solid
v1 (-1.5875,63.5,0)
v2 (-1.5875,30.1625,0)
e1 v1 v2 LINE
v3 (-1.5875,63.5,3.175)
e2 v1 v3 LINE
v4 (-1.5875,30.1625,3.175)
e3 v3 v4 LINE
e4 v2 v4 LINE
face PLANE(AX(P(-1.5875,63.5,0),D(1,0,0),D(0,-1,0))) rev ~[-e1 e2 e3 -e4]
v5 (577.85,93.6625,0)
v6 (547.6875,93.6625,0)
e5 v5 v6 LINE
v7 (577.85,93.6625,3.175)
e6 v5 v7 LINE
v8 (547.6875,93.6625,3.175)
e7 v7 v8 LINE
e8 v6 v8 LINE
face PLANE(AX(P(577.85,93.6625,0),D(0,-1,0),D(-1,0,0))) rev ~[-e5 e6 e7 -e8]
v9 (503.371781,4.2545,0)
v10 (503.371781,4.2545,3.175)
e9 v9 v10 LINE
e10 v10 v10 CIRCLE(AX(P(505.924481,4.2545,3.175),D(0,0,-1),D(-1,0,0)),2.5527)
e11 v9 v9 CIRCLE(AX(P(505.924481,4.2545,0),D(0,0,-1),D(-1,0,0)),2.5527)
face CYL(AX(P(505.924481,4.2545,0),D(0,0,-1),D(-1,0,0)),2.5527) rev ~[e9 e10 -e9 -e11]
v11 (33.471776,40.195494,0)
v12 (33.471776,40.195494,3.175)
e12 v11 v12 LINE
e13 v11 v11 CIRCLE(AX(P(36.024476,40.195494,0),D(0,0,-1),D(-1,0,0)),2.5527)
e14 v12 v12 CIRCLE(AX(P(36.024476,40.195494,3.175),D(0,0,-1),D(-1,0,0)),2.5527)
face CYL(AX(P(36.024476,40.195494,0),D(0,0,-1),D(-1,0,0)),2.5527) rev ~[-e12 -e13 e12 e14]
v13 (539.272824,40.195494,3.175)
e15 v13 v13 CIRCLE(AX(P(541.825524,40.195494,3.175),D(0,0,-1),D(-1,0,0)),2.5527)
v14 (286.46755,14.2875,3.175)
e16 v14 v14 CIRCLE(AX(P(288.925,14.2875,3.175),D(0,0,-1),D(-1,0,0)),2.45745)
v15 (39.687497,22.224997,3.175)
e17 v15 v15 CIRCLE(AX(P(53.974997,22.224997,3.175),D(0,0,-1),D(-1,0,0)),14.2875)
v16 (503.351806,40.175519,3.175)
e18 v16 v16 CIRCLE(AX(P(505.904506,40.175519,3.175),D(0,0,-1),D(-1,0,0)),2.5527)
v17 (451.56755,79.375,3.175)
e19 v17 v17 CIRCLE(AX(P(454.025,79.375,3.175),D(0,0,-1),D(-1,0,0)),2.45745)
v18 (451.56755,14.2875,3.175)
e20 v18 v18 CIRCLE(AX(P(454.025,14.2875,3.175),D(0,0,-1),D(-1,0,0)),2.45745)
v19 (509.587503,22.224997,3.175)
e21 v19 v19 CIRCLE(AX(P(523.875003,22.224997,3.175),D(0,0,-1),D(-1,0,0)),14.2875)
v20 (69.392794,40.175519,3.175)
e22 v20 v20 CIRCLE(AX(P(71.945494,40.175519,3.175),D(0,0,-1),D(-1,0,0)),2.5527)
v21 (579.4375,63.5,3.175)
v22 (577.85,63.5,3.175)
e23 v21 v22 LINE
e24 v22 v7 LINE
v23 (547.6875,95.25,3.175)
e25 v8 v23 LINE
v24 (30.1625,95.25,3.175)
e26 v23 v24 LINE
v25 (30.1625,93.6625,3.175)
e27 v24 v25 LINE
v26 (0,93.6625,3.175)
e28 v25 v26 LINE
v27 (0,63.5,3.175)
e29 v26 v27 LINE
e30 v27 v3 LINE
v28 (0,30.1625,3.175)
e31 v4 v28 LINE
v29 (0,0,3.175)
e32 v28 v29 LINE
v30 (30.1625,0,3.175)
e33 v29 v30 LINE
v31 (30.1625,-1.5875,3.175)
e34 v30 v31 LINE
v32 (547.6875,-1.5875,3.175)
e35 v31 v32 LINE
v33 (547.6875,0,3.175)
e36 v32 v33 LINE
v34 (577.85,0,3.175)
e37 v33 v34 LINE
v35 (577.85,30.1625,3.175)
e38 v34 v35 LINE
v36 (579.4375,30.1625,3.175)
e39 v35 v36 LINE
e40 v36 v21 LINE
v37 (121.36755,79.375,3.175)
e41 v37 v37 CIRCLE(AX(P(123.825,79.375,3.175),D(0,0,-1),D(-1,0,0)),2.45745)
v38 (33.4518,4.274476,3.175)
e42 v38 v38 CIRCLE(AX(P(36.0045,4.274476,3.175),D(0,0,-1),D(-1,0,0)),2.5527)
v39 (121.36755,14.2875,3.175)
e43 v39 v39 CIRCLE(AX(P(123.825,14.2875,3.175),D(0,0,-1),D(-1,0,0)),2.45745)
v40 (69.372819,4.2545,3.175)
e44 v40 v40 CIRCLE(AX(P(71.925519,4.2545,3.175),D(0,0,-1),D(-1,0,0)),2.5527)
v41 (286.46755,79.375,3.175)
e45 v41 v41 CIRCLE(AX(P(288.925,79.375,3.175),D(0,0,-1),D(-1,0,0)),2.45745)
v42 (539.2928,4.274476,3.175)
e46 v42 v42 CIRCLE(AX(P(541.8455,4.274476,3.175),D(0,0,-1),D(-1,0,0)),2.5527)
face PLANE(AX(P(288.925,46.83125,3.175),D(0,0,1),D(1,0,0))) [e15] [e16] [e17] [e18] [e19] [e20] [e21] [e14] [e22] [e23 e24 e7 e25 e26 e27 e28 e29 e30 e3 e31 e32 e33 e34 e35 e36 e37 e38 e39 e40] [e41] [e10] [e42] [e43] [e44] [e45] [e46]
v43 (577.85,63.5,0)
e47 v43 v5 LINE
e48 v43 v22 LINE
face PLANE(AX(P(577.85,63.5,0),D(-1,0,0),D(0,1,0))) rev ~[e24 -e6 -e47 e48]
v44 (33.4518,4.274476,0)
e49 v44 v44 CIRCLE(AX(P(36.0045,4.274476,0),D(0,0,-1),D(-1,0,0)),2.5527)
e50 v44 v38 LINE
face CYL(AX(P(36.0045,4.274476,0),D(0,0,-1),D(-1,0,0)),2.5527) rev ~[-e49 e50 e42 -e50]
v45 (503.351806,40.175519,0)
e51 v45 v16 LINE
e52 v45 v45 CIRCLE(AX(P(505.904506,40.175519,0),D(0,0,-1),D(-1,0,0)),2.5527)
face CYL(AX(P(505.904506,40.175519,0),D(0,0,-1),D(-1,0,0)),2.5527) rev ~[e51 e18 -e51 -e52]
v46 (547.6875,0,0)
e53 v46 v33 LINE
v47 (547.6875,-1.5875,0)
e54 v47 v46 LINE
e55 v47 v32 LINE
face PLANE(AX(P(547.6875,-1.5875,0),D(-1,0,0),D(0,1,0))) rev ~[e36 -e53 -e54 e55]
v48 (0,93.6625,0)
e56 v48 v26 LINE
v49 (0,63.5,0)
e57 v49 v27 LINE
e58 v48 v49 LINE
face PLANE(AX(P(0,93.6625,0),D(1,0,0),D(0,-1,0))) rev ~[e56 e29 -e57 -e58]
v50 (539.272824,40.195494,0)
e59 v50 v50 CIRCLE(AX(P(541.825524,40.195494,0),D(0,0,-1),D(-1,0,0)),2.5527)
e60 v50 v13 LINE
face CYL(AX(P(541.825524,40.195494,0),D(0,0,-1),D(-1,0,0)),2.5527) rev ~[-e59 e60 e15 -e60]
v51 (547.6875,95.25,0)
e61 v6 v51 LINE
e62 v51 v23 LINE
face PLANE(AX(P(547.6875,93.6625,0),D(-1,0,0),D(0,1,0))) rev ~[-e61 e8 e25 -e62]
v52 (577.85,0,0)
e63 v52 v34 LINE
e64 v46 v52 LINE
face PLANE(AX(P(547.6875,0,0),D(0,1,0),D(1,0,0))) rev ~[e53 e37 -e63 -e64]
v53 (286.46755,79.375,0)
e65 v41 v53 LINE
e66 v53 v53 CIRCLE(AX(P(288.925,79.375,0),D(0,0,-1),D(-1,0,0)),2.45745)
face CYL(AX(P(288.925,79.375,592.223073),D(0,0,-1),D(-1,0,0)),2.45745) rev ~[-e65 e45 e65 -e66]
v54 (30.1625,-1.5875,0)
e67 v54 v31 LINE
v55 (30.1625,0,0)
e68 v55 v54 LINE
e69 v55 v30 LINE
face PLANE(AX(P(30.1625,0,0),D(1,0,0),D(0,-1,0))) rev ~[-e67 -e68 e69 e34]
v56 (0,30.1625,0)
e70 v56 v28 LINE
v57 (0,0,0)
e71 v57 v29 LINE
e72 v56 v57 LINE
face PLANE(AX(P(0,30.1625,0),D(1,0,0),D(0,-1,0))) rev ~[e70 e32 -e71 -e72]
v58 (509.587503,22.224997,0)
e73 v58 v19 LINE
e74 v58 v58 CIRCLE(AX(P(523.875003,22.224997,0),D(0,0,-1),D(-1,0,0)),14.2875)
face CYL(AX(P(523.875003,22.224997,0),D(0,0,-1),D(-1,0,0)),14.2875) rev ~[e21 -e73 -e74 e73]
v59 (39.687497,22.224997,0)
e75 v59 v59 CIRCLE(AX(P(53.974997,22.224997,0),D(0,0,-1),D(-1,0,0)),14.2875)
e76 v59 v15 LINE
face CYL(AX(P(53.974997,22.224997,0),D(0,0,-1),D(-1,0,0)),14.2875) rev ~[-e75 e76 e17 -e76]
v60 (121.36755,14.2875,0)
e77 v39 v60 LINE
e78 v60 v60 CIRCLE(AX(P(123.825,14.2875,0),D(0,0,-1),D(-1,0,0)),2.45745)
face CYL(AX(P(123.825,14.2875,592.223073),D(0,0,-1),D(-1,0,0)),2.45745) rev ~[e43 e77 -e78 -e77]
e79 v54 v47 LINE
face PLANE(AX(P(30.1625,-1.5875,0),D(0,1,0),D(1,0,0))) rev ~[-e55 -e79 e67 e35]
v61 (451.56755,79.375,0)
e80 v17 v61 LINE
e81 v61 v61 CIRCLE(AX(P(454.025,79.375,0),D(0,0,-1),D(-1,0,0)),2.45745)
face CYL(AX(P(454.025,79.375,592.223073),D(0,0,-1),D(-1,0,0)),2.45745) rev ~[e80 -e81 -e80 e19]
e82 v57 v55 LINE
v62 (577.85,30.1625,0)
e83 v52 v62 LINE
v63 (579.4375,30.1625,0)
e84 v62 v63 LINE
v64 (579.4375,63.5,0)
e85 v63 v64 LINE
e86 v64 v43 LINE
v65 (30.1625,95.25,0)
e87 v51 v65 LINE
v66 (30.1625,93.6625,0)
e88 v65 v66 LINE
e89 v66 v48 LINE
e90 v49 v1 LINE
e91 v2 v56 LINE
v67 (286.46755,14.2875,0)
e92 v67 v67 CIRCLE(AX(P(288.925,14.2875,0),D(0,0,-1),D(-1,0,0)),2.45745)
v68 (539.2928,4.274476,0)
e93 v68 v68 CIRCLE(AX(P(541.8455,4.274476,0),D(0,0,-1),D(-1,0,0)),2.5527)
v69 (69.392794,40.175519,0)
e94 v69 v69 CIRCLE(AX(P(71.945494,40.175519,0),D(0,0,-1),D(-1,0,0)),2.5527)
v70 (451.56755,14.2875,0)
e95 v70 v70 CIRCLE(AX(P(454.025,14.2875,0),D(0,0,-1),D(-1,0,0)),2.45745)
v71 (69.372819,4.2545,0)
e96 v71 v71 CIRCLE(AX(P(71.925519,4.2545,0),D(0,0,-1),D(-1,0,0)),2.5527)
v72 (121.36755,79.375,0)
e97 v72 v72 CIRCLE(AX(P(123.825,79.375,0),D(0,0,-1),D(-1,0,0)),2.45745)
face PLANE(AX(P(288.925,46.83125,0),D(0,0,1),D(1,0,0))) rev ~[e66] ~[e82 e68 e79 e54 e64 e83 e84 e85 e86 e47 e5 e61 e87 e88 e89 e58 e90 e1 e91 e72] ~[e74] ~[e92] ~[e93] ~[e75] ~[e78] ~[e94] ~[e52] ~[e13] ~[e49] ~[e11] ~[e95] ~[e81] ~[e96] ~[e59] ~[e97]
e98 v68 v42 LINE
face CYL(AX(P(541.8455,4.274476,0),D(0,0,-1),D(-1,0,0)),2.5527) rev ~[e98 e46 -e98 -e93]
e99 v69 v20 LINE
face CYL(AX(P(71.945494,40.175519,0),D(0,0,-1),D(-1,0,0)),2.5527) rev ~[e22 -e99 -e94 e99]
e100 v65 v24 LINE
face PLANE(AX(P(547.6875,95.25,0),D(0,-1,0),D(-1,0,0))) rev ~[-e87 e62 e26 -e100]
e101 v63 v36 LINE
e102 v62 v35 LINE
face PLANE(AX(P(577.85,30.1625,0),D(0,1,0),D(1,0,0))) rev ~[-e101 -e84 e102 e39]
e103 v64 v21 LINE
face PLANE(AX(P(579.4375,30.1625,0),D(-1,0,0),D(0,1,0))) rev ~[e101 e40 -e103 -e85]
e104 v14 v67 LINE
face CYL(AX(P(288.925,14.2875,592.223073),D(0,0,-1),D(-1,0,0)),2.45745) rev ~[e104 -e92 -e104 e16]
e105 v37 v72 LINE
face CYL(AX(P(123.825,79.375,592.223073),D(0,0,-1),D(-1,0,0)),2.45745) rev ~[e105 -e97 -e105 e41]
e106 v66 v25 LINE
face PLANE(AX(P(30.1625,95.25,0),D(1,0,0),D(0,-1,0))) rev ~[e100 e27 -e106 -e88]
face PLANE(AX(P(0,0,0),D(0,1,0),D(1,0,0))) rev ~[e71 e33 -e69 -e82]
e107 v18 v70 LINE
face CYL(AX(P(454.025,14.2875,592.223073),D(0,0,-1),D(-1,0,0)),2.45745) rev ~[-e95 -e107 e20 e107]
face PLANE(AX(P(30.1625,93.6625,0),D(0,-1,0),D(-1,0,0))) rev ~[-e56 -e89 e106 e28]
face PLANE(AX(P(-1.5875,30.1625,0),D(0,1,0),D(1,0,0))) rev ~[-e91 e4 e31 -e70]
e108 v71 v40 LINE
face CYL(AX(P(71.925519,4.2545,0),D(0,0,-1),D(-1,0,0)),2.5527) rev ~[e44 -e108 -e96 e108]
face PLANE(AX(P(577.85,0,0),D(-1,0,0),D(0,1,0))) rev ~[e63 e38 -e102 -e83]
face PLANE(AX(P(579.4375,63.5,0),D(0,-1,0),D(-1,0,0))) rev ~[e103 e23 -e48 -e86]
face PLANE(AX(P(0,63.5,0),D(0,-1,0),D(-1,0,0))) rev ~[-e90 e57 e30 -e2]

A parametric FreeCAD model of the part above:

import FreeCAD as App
import Part
import Sketcher
from FreeCAD import Vector
Q = App.Units.Quantity

doc = App.newDocument("Part")
body = doc.addObject("PartDesign::Body", "Body")

sketch1 = doc.addObject("Sketcher::SketchObject", "Sketch")
body.addObject(sketch1)
sketch1.AttachmentSupport = (doc.XY_Plane, [""])
sketch1.MapMode = "FlatFace"
sketch1.addGeometry(Part.LineSegment(Vector(0, 63.5, 0), Vector(-1.6, 63.5, 0)), False)
sketch1.addGeometry(Part.LineSegment(Vector(-1.6, 63.5, 0), Vector(-1.6, 30.2, 0)), False)
sketch1.addGeometry(Part.LineSegment(Vector(-1.6, 30.2, 0), Vector(0, 30.2, 0)), False)
sketch1.addGeometry(Part.LineSegment(Vector(0, 30.2, 0), Vector(0, 0, 0)), False)
sketch1.addGeometry(Part.LineSegment(Vector(0, 0, 0), Vector(30.2, 0, 0)), False)
sketch1.addGeometry(Part.LineSegment(Vector(30.2, 0, 0), Vector(30.2, -1.6, 0)), False)
sketch1.addGeometry(Part.LineSegment(Vector(30.2, -1.6, 0), Vector(547.7, -1.6, 0)), False)
sketch1.addGeometry(Part.LineSegment(Vector(547.7, -1.6, 0), Vector(547.7, 0, 0)), False)
sketch1.addGeometry(Part.LineSegment(Vector(547.7, 0, 0), Vector(577.9, 0, 0)), False)
sketch1.addGeometry(Part.LineSegment(Vector(577.9, 0, 0), Vector(577.9, 30.2, 0)), False)
sketch1.addGeometry(Part.LineSegment(Vector(577.9, 30.2, 0), Vector(579.4, 30.2, 0)), False)
sketch1.addGeometry(Part.LineSegment(Vector(579.4, 30.2, 0), Vector(579.4, 63.5, 0)), False)
sketch1.addGeometry(Part.LineSegment(Vector(579.4, 63.5, 0), Vector(577.9, 63.5, 0)), False)
sketch1.addGeometry(Part.LineSegment(Vector(577.9, 63.5, 0), Vector(577.9, 93.7, 0)), False)
sketch1.addGeometry(Part.LineSegment(Vector(577.9, 93.7, 0), Vector(547.7, 93.7, 0)), False)
sketch1.addGeometry(Part.LineSegment(Vector(547.7, 93.7, 0), Vector(547.7, 95.2, 0)), False)
sketch1.addGeometry(Part.LineSegment(Vector(547.7, 95.2, 0), Vector(30.2, 95.2, 0)), False)
sketch1.addGeometry(Part.LineSegment(Vector(30.2, 95.2, 0), Vector(30.2, 93.7, 0)), False)
sketch1.addGeometry(Part.LineSegment(Vector(30.2, 93.7, 0), Vector(0, 93.7, 0)), False)
sketch1.addGeometry(Part.LineSegment(Vector(0, 93.7, 0), Vector(0, 63.5, 0)), False)
sketch1.addConstraint(Sketcher.Constraint("Coincident", 0, 2, 1, 1))
sketch1.addConstraint(Sketcher.Constraint("Coincident", 1, 2, 2, 1))
sketch1.addConstraint(Sketcher.Constraint("Coincident", 2, 2, 3, 1))
sketch1.addConstraint(Sketcher.Constraint("Coincident", 3, 2, 4, 1))
sketch1.addConstraint(Sketcher.Constraint("Coincident", 4, 2, 5, 1))
sketch1.addConstraint(Sketcher.Constraint("Coincident", 5, 2, 6, 1))
sketch1.addConstraint(Sketcher.Constraint("Coincident", 6, 2, 7, 1))
sketch1.addConstraint(Sketcher.Constraint("Coincident", 7, 2, 8, 1))
sketch1.addConstraint(Sketcher.Constraint("Coincident", 8, 2, 9, 1))
sketch1.addConstraint(Sketcher.Constraint("Coincident", 9, 2, 10, 1))
sketch1.addConstraint(Sketcher.Constraint("Coincident", 10, 2, 11, 1))
sketch1.addConstraint(Sketcher.Constraint("Coincident", 11, 2, 12, 1))
sketch1.addConstraint(Sketcher.Constraint("Coincident", 12, 2, 13, 1))
sketch1.addConstraint(Sketcher.Constraint("Coincident", 13, 2, 14, 1))
sketch1.addConstraint(Sketcher.Constraint("Coincident", 14, 2, 15, 1))
sketch1.addConstraint(Sketcher.Constraint("Coincident", 15, 2, 16, 1))
sketch1.addConstraint(Sketcher.Constraint("Coincident", 16, 2, 17, 1))
sketch1.addConstraint(Sketcher.Constraint("Coincident", 17, 2, 18, 1))
sketch1.addConstraint(Sketcher.Constraint("Coincident", 18, 2, 19, 1))
sketch1.addConstraint(Sketcher.Constraint("Coincident", 19, 2, 0, 1))
sketch1.addConstraint(Sketcher.Constraint("Horizontal", 0))
sketch1.addConstraint(Sketcher.Constraint("Vertical", 1))
sketch1.addConstraint(Sketcher.Constraint("Horizontal", 2))
sketch1.addConstraint(Sketcher.Constraint("Vertical", 3))
sketch1.addConstraint(Sketcher.Constraint("Horizontal", 4))
sketch1.addConstraint(Sketcher.Constraint("Vertical", 5))
sketch1.addConstraint(Sketcher.Constraint("Horizontal", 6))
sketch1.addConstraint(Sketcher.Constraint("Vertical", 7))
sketch1.addConstraint(Sketcher.Constraint("Horizontal", 8))
sketch1.addConstraint(Sketcher.Constraint("Vertical", 9))
sketch1.addConstraint(Sketcher.Constraint("Horizontal", 10))
sketch1.addConstraint(Sketcher.Constraint("Vertical", 11))
sketch1.addConstraint(Sketcher.Constraint("Horizontal", 12))
sketch1.addConstraint(Sketcher.Constraint("Vertical", 13))
sketch1.addConstraint(Sketcher.Constraint("Horizontal", 14))
sketch1.addConstraint(Sketcher.Constraint("Vertical", 15))
sketch1.addConstraint(Sketcher.Constraint("Horizontal", 16))
sketch1.addConstraint(Sketcher.Constraint("Vertical", 17))
sketch1.addConstraint(Sketcher.Constraint("Horizontal", 18))
sketch1.addConstraint(Sketcher.Constraint("Vertical", 19))
sketch1.addConstraint(Sketcher.Constraint("Coincident", 3, 2, -1, 1))
sketch1.addConstraint(Sketcher.Constraint("PointOnObject", 7, 2, -1))
sketch1.addConstraint(Sketcher.Constraint("PointOnObject", 18, 2, -2))
sketch1.addConstraint(Sketcher.Constraint("Horizontal", 2, 2, 9, 2))
sketch1.addConstraint(Sketcher.Constraint("Horizontal", 0, 2, 11, 2))
sketch1.addConstraint(Sketcher.Constraint("Horizontal", 14, 2, 17, 2))
sketch1.addConstraint(Sketcher.Constraint("Vertical", 9, 2, 12, 2))
sketch1.addConstraint(Sketcher.Constraint("Vertical", 7, 2, 14, 2))
sketch1.addConstraint(Sketcher.Constraint("Vertical", 5, 2, 16, 2))
sketch1.addConstraint(Sketcher.Constraint("Equal", 4, 8))
sketch1.addConstraint(Sketcher.Constraint("Equal", 2, 10))
sketch1.addConstraint(Sketcher.Constraint("Equal", 18, 3))
sketch1.addConstraint(Sketcher.Constraint("Equal", 12, 5))
sketch1.addConstraint(Sketcher.Constraint("Equal", 9, 13))
sketch1.addConstraint(Sketcher.Constraint("Equal", 7, 15))
sketch1.addConstraint(Sketcher.Constraint("DistanceY", -1, 1, 0, 2, Q("2.5 in")))
sketch1.addConstraint(Sketcher.Constraint("DistanceX", 0, 2, 0, 1, Q("0.0625 in")))
sketch1.addConstraint(Sketcher.Constraint("DistanceX", 4, 1, 4, 2, Q("1.1875 in")))
sketch1.addConstraint(Sketcher.Constraint("DistanceX", 6, 1, 6, 2, Q("20.375 in")))
pad1 = doc.addObject("PartDesign::Pad", "Pad")
body.addObject(pad1)
pad1.Profile = sketch1
pad1.Length = Q("0.125 in")

sketch2 = doc.addObject("Sketcher::SketchObject", "Sketch001")
body.addObject(sketch2)
sketch2.AttachmentSupport = (doc.XY_Plane, [""])
sketch2.MapMode = "FlatFace"
sketch2.AttachmentOffset = App.Placement(Vector(0, 0, 0.125 * 25.4), App.Rotation())
sketch2.addGeometry(Part.Circle(Vector(288.9, 79.4, 0), Vector(0, 0, 1), 2.5), False)
sketch2.addGeometry(Part.Circle(Vector(123.8, 79.4, 0), Vector(0, 0, 1), 2.5), False)
sketch2.addGeometry(Part.Circle(Vector(454, 79.4, 0), Vector(0, 0, 1), 2.5), False)
sketch2.addGeometry(Part.Circle(Vector(454, 14.3, 0), Vector(0, 0, 1), 2.5), False)
sketch2.addGeometry(Part.Circle(Vector(123.8, 14.3, 0), Vector(0, 0, 1), 2.5), False)
sketch2.addGeometry(Part.Circle(Vector(288.9, 14.3, 0), Vector(0, 0, 1), 2.5), False)
sketch2.addConstraint(Sketcher.Constraint("Equal", 0, 1))
sketch2.addConstraint(Sketcher.Constraint("Equal", 1, 2))
sketch2.addConstraint(Sketcher.Constraint("Equal", 2, 3))
sketch2.addConstraint(Sketcher.Constraint("Equal", 3, 4))
sketch2.addConstraint(Sketcher.Constraint("Equal", 4, 5))
sketch2.addConstraint(Sketcher.Constraint("Horizontal", 0, 3, 1, 3))
sketch2.addConstraint(Sketcher.Constraint("Horizontal", 1, 3, 2, 3))
sketch2.addConstraint(Sketcher.Constraint("Horizontal", 3, 3, 4, 3))
sketch2.addConstraint(Sketcher.Constraint("Horizontal", 4, 3, 5, 3))
sketch2.addConstraint(Sketcher.Constraint("Vertical", 2, 3, 3, 3))
sketch2.addConstraint(Sketcher.Constraint("Vertical", 1, 3, 4, 3))
sketch2.addConstraint(Sketcher.Constraint("Vertical", 0, 3, 5, 3))
sketch2.addConstraint(Sketcher.Constraint("DistanceX", 1, 3, 2, 3, Q("13 in")))
sketch2.addConstraint(Sketcher.Constraint("Diameter", 0, Q("0.1935 in")))
sketch2.addConstraint(Sketcher.Constraint("DistanceX", 1, 3, 0, 3, Q("6.5 in")))
sketch2.addConstraint(Sketcher.Constraint("DistanceX", -1, 1, 0, 3, Q("11.375 in")))
sketch2.addConstraint(Sketcher.Constraint("DistanceY", -1, 1, 0, 3, Q("3.125 in")))
sketch2.addConstraint(Sketcher.Constraint("DistanceY", -1, 1, 3, 3, Q("0.5625 in")))
doc.recompute()
hole = doc.addObject("PartDesign::Hole", "Hole")
body.addObject(hole)
hole.Profile = sketch2
hole.ThreadType = "None"
hole.Diameter = Q("0.1935 in")
hole.DepthType = "ThroughAll"

sketch3 = doc.addObject("Sketcher::SketchObject", "Sketch002")
body.addObject(sketch3)
sketch3.AttachmentSupport = (doc.XY_Plane, [""])
sketch3.MapMode = "FlatFace"
sketch3.addGeometry(Part.Circle(Vector(541.8, 40.2, 0), Vector(0, 0, 1), 2.6), False)
sketch3.addGeometry(Part.Circle(Vector(505.9, 4.3, 0), Vector(0, 0, 1), 2.6), False)
sketch3.addGeometry(Part.Circle(Vector(523.9, 22.2, 0), Vector(0, 0, 1), 14.3), False)
sketch3.addGeometry(Part.Circle(Vector(541.8, 4.3, 0), Vector(0, 0, 1), 2.6), False)
sketch3.addGeometry(Part.Circle(Vector(505.9, 40.2, 0), Vector(0, 0, 1), 2.6), False)
sketch3.addGeometry(Part.Circle(Vector(71.9, 40.2, 0), Vector(0, 0, 1), 2.6), False)
sketch3.addGeometry(Part.Circle(Vector(36, 4.3, 0), Vector(0, 0, 1), 2.6), False)
sketch3.addGeometry(Part.Circle(Vector(54, 22.2, 0), Vector(0, 0, 1), 14.3), False)
sketch3.addGeometry(Part.Circle(Vector(71.9, 4.3, 0), Vector(0, 0, 1), 2.6), False)
sketch3.addGeometry(Part.Circle(Vector(36, 40.2, 0), Vector(0, 0, 1), 2.6), False)
sketch3.addConstraint(Sketcher.Constraint("Equal", 0, 1))
sketch3.addConstraint(Sketcher.Constraint("Equal", 1, 3))
sketch3.addConstraint(Sketcher.Constraint("Equal", 3, 4))
sketch3.addConstraint(Sketcher.Constraint("Equal", 4, 5))
sketch3.addConstraint(Sketcher.Constraint("Equal", 5, 6))
sketch3.addConstraint(Sketcher.Constraint("Equal", 2, 7))
sketch3.addConstraint(Sketcher.Constraint("Equal", 6, 8))
sketch3.addConstraint(Sketcher.Constraint("Equal", 8, 9))
sketch3.addConstraint(Sketcher.Constraint("Horizontal", 4, 3, 5, 3))
sketch3.addConstraint(Sketcher.Constraint("Horizontal", 3, 3, 6, 3))
sketch3.addConstraint(Sketcher.Constraint("Horizontal", 2, 3, 7, 3))
sketch3.addConstraint(Sketcher.Constraint("Horizontal", 1, 3, 8, 3))
sketch3.addConstraint(Sketcher.Constraint("Horizontal", 0, 3, 9, 3))
sketch3.addConstraint(Sketcher.Constraint("Diameter", 0, Q("0.201 in")))
sketch3.addConstraint(Sketcher.Constraint("Diameter", 2, Q("1.125 in")))
sketch3.addConstraint(Sketcher.Constraint("DistanceX", -1, 1, 2, 3, Q("20.6250001 in")))
sketch3.addConstraint(Sketcher.Constraint("DistanceY", -1, 1, 2, 3, Q("0.8749999 in")))
sketch3.addConstraint(Sketcher.Constraint("DistanceX", -1, 1, 7, 3, Q("2.1249999 in")))
sketch3.addConstraint(Sketcher.Constraint("DistanceX", 6, 3, 3, 3, Q("19.915 in")))
sketch3.addConstraint(Sketcher.Constraint("DistanceY", -1, 1, 1, 3, Q("0.1675 in")))
sketch3.addConstraint(Sketcher.Constraint("DistanceX", -1, 1, 3, 3, Q("21.3325 in")))
sketch3.addConstraint(Sketcher.Constraint("DistanceY", 2, 3, 0, 3, Q("0.7074999 in")))
sketch3.addConstraint(Sketcher.Constraint("DistanceX", 4, 3, 2, 3, Q("0.7074999 in")))
sketch3.addConstraint(Sketcher.Constraint("DistanceX", 7, 3, 5, 3, Q("0.7074999 in")))
sketch3.addConstraint(Sketcher.Constraint("DistanceX", -1, 1, 1, 3, Q("505.924481 mm")))
sketch3.addConstraint(Sketcher.Constraint("DistanceY", -1, 1, 4, 3, Q("40.175519 mm")))
sketch3.addConstraint(Sketcher.Constraint("DistanceX", -1, 1, 8, 3, Q("71.925519 mm")))
sketch3.addConstraint(Sketcher.Constraint("DistanceX", 2, 3, 0, 3, Q("17.950522 mm")))
sketch3.addConstraint(Sketcher.Constraint("DistanceY", 3, 3, 2, 3, Q("17.950522 mm")))
sketch3.addConstraint(Sketcher.Constraint("DistanceX", 9, 3, 7, 3, Q("17.950522 mm")))
pocket1 = doc.addObject("PartDesign::Pocket", "Pocket")
body.addObject(pocket1)
pocket1.Profile = sketch3
pocket1.Length = Q("0.25 in")
pocket1.Reversed = True

doc.recompute()
